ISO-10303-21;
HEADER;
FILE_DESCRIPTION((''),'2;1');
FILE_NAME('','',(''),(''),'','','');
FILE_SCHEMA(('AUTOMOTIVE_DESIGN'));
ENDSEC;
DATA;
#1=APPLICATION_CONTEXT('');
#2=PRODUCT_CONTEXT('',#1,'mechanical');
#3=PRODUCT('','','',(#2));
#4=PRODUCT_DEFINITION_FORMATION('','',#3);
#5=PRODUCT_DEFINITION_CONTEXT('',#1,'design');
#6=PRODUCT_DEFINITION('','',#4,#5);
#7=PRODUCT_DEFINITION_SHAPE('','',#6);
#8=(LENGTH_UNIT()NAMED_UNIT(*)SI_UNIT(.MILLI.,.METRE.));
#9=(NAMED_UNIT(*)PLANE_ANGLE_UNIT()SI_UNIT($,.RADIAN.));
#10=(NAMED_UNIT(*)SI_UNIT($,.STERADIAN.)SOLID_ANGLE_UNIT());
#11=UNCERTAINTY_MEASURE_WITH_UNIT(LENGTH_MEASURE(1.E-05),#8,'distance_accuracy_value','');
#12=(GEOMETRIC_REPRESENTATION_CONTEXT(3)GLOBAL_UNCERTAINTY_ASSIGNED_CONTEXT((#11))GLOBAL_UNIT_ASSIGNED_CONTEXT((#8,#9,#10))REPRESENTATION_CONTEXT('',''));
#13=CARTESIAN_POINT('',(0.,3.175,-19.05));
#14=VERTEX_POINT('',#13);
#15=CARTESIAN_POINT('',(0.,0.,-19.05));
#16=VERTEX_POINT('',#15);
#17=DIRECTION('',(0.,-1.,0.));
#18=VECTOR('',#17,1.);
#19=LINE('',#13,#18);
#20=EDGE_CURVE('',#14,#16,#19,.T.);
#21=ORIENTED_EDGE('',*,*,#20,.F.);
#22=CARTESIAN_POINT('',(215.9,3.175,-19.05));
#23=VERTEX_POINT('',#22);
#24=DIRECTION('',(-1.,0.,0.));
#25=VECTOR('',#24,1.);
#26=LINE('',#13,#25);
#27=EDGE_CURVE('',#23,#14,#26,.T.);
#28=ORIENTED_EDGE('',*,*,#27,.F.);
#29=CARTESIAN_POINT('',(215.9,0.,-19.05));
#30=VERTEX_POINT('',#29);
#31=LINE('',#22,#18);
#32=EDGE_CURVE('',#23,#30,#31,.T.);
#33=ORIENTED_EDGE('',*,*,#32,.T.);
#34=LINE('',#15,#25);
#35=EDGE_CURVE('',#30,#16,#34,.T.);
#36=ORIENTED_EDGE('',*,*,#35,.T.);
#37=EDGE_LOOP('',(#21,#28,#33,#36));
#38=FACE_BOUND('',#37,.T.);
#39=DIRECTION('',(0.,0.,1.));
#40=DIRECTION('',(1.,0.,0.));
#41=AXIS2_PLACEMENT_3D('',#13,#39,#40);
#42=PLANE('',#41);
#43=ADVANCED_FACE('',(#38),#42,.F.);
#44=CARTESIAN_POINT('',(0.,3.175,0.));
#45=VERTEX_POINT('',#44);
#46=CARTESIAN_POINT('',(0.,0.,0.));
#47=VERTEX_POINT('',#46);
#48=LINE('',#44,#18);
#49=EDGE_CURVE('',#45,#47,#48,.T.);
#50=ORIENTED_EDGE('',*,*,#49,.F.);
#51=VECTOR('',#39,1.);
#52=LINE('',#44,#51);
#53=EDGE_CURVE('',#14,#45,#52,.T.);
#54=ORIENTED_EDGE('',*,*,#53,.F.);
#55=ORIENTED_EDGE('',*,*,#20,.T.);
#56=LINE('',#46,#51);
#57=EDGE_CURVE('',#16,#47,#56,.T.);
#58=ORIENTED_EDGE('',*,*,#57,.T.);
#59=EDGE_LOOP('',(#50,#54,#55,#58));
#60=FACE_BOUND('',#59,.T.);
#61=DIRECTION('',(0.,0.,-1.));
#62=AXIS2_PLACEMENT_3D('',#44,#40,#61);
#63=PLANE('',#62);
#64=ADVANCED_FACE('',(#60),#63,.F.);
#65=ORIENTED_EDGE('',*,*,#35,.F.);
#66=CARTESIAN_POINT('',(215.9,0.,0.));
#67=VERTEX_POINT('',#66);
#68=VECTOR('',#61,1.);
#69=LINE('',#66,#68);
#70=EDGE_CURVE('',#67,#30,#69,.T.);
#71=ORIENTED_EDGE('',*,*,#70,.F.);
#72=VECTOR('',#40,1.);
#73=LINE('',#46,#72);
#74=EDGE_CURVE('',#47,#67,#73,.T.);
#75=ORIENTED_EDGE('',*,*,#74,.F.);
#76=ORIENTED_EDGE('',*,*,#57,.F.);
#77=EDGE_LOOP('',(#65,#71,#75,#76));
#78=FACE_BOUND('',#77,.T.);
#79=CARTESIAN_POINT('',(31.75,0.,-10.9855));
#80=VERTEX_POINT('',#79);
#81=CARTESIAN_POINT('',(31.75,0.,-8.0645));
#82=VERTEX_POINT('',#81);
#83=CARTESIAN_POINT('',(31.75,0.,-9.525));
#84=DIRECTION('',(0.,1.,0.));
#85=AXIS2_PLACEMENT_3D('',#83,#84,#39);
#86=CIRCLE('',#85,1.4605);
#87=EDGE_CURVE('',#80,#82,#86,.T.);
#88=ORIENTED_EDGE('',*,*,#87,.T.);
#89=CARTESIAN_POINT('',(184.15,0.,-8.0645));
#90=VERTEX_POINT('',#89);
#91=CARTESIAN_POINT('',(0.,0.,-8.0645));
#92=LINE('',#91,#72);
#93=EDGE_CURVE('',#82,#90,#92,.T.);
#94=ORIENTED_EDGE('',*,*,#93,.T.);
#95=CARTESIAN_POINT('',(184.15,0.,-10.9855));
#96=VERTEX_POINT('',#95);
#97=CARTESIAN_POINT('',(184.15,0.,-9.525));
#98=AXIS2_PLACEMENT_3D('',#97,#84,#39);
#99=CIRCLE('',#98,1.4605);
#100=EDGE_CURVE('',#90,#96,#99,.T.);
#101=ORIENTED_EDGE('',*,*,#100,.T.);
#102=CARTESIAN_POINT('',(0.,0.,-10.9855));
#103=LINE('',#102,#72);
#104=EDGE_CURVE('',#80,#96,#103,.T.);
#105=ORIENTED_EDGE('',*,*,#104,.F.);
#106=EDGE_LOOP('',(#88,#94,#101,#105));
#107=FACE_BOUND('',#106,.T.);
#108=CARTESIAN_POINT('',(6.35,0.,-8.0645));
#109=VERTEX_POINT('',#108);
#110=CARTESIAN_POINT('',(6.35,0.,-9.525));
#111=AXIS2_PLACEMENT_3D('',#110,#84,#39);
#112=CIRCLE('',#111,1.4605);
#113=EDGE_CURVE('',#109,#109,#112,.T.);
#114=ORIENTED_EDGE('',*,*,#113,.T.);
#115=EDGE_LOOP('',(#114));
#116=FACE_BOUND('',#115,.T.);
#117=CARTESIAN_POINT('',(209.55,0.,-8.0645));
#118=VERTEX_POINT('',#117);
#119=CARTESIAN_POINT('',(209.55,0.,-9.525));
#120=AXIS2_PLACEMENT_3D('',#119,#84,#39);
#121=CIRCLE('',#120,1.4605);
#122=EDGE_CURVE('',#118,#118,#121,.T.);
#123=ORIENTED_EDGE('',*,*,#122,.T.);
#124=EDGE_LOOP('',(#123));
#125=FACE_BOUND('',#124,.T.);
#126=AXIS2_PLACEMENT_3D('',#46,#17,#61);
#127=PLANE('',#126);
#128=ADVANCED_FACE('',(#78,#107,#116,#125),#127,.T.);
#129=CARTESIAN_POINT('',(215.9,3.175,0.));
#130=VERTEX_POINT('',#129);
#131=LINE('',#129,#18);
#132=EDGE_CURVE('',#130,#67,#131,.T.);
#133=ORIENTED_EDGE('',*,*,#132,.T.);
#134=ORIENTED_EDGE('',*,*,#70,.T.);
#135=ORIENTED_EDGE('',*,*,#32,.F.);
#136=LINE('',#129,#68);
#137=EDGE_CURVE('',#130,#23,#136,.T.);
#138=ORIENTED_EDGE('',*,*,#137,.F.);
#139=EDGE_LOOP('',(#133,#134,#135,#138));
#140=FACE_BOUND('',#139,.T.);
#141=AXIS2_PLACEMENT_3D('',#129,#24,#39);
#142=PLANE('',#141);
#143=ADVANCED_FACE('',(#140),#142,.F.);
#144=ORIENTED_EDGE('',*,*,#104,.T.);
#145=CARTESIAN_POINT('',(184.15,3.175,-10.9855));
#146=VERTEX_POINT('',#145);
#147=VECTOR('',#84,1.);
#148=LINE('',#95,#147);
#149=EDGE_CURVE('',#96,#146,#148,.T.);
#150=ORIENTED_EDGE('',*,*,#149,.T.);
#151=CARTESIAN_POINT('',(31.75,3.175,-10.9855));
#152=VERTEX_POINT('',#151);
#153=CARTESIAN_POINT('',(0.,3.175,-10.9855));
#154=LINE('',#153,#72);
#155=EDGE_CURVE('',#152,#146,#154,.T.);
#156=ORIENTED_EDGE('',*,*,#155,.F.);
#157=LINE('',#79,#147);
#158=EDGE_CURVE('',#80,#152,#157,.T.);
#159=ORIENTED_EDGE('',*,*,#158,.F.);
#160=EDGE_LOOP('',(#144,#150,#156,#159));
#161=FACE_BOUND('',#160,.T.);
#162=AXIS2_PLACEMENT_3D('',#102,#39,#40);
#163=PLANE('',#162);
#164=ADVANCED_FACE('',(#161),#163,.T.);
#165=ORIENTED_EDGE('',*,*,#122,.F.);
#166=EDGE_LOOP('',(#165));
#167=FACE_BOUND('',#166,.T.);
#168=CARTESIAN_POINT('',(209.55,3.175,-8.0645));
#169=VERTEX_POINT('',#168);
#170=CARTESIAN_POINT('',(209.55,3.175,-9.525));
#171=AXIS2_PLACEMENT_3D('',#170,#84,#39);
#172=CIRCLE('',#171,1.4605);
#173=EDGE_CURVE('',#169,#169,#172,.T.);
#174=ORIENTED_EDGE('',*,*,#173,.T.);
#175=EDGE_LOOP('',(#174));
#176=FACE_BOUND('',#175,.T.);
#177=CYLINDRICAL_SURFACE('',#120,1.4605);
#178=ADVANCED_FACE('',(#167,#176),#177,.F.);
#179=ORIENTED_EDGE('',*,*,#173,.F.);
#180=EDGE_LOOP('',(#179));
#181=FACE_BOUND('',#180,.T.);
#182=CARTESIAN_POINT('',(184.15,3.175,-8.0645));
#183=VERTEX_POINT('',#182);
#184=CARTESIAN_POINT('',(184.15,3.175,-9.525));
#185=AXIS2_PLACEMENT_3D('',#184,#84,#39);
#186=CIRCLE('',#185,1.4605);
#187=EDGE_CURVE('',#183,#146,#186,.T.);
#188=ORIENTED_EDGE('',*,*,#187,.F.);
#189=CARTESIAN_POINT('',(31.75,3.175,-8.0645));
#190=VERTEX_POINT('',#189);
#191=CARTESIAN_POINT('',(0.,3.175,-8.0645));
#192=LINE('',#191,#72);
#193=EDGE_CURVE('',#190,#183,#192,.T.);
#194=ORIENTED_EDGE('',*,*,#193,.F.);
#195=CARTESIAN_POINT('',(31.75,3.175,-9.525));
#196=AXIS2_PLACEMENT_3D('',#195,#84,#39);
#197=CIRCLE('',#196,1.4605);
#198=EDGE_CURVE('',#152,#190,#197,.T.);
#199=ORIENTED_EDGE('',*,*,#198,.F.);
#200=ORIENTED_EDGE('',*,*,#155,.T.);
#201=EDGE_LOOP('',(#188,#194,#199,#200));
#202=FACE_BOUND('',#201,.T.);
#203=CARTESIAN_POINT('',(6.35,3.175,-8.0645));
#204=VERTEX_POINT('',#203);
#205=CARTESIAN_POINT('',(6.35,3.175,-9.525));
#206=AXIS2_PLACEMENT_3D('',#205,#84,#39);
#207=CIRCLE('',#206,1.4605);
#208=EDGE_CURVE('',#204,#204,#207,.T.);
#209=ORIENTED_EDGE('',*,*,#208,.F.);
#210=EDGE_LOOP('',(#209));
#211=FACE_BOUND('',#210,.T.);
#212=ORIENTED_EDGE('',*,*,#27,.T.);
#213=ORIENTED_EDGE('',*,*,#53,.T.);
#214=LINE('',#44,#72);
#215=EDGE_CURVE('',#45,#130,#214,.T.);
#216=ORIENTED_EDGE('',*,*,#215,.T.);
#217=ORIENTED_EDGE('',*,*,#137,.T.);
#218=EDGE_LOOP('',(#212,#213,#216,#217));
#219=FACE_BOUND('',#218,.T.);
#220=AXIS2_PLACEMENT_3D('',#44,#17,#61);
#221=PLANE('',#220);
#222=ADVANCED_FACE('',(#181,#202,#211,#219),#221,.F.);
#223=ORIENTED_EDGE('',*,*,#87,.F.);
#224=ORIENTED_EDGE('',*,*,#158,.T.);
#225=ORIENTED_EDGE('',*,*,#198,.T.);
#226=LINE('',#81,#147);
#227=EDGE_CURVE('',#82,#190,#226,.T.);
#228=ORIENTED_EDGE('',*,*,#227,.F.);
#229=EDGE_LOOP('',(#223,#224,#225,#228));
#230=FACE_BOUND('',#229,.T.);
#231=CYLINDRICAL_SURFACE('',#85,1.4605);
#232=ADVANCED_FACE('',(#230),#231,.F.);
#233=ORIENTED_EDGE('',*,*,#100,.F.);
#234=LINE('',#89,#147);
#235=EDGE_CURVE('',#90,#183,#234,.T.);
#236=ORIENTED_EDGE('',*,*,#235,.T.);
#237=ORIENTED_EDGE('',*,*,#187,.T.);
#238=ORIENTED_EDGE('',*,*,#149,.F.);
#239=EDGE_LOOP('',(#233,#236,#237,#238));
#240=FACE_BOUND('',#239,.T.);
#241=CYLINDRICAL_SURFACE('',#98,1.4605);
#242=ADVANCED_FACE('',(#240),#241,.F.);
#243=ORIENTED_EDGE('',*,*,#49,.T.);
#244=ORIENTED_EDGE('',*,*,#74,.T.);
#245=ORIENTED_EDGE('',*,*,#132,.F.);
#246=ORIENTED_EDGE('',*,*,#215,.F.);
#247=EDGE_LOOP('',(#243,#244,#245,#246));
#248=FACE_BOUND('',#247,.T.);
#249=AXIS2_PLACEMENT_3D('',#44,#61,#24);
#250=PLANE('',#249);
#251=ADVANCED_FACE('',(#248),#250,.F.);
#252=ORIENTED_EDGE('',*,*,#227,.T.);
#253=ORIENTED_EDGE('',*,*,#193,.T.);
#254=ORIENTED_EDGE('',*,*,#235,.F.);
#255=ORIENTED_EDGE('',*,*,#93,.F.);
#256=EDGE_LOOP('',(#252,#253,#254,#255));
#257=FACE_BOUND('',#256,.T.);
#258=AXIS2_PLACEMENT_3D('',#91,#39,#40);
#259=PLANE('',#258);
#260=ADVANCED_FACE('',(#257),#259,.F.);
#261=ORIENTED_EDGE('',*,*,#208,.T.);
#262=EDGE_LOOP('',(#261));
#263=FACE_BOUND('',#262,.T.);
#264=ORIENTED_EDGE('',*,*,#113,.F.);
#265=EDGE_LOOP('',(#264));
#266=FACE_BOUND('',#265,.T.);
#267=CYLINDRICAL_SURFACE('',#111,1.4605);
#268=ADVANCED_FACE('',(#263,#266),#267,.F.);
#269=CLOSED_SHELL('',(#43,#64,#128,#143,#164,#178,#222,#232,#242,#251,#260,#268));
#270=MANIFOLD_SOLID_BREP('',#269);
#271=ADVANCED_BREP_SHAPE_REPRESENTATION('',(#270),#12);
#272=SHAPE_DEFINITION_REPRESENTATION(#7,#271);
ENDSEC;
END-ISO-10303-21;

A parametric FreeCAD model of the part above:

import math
import FreeCAD as App
import Part
import Sketcher

V = App.Vector
Q = App.Units.Quantity

doc = App.newDocument("Part")
body = doc.addObject("PartDesign::Body", "Body")

# Sketch on XZ plane
sketch1 = body.newObject("Sketcher::SketchObject", "Sketch")
sketch1.AttachmentSupport = (doc.getObject("XZ_Plane"), [""])
sketch1.MapMode = "FlatFace"
sketch1.addGeometry([
    Part.LineSegment(V(0, -19, 0), V(0, 0, 0)),
    Part.LineSegment(V(0, 0, 0), V(216, 0, 0)),
    Part.LineSegment(V(216, 0, 0), V(216, -19, 0)),
    Part.LineSegment(V(216, -19, 0), V(0, -19, 0)),
], False)
sketch1.addConstraint([
    Sketcher.Constraint("Coincident", 0, 2, 1, 1),
    Sketcher.Constraint("Coincident", 1, 2, 2, 1),
    Sketcher.Constraint("Coincident", 2, 2, 3, 1),
    Sketcher.Constraint("Coincident", 3, 2, 0, 1),
    Sketcher.Constraint("Vertical", 0),
    Sketcher.Constraint("Horizontal", 1),
    Sketcher.Constraint("Vertical", 2),
    Sketcher.Constraint("Horizontal", 3),
    Sketcher.Constraint("Coincident", 0, 2, -1, 1),
    Sketcher.Constraint("DistanceX", 1, 1, 1, 2, Q("8.5 in")),
    Sketcher.Constraint("DistanceY", 0, 1, 0, 2, Q("0.75 in")),
])
pad1 = body.newObject("PartDesign::Pad", "Pad")
pad1.Profile = sketch1
pad1.Length = Q("0.125 in")
pad1.Reversed = True

# Sketch on XZ plane
sketch2 = body.newObject("Sketcher::SketchObject", "Sketch001")
sketch2.AttachmentSupport = (doc.getObject("XZ_Plane"), [""])
sketch2.MapMode = "FlatFace"
sketch2.AttachmentOffset = App.Placement(V(0, 0, -0.125 * 25.4), App.Rotation())
sketch2.addGeometry([
    Part.LineSegment(V(184.2, -11, 0), V(31.8, -11, 0)),  # 0
    Part.ArcOfCircle(Part.Circle(V(31.8, -9.5, 0), V(0, 0, 1), 1.5), math.radians(90), math.radians(270)),  # 1
    Part.LineSegment(V(31.8, -8.1, 0), V(184.2, -8.1, 0)),  # 2
    Part.ArcOfCircle(Part.Circle(V(184.2, -9.5, 0), V(0, 0, 1), 1.5), math.radians(-90), math.radians(90)),  # 3
    Part.Circle(V(6.3, -9.5, 0), V(0, 0, 1), 1.5),  # 4
    Part.Circle(V(209.6, -9.5, 0), V(0, 0, 1), 1.5),  # 5
], False)
sketch2.addConstraint([
    Sketcher.Constraint("Tangent", 0, 2, 1, 2),
    Sketcher.Constraint("Tangent", 1, 1, 2, 1),
    Sketcher.Constraint("Tangent", 2, 2, 3, 2),
    Sketcher.Constraint("Tangent", 3, 1, 0, 1),
    Sketcher.Constraint("Horizontal", 0),
    Sketcher.Constraint("Horizontal", 2),
    Sketcher.Constraint("Equal", 3, 4),
    Sketcher.Constraint("Equal", 4, 5),
    Sketcher.Constraint("Horizontal", 3, 3, 4, 3),
    Sketcher.Constraint("Horizontal", 4, 3, 5, 3),
    Sketcher.Constraint("DistanceX", 0, 2, 0, 1, Q("6 in")),
    Sketcher.Constraint("Diameter", 4, Q("0.115 in")),
    Sketcher.Constraint("DistanceX", 4, 3, 1, 3, Q("1 in")),
    Sketcher.Constraint("DistanceX", 3, 3, 5, 3, Q("1 in")),
    Sketcher.Constraint("DistanceX", -1, 1, 1, 3, Q("1.25 in")),
    Sketcher.Constraint("DistanceY", 1, 3, -1, 1, Q("0.375 in")),
])
pocket1 = body.newObject("PartDesign::Pocket", "Pocket")
pocket1.Profile = sketch2
pocket1.Type = "ThroughAll"
pocket1.Reversed = True

doc.recompute()
